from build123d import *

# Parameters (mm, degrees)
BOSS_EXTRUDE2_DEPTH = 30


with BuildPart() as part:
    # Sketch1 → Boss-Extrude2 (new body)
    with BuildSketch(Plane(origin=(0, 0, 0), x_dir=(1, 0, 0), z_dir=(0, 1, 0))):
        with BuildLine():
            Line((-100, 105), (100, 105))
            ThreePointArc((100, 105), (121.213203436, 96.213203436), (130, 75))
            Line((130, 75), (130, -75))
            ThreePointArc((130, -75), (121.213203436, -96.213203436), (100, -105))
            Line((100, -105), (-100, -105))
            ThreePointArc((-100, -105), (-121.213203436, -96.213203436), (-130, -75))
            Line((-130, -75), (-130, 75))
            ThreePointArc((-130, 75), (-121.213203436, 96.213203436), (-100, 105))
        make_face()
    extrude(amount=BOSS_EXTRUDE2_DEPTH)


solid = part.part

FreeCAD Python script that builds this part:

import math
import FreeCAD as App
import Part
import Sketcher
from FreeCAD import Vector
Q = App.Units.Quantity

doc = App.newDocument("Part")
params = doc.addObject("Spreadsheet::Sheet", "Params")
for row, (alias, value) in enumerate([
    ("sketch1_radius", "30 mm"),
    ("sketch1_width", "200 mm"),
    ("sketch1_height", "150 mm"),
    ("pad1_length", "30 mm"),
], start=1):
    params.set(f"A{row}", alias)
    params.set(f"B{row}", "=" + value)
    params.setAlias(f"B{row}", alias)

body = doc.addObject("PartDesign::Body", "Body")

# Sketch on XZ plane
sketch1 = body.newObject("Sketcher::SketchObject", "Sketch")
sketch1.AttachmentSupport = (doc.getObject("XZ_Plane"), [""])
sketch1.MapMode = "FlatFace"
sketch1.addGeometry([
    Part.LineSegment(Vector(100, -105, 0), Vector(-100, -105, 0)),  # 0
    Part.ArcOfCircle(Part.Circle(Vector(-100, -75, 0), Vector(0, 0, 1), 30), math.radians(180), math.radians(270)),  # 1
    Part.LineSegment(Vector(-130, -75, 0), Vector(-130, 75, 0)),  # 2
    Part.ArcOfCircle(Part.Circle(Vector(-100, 75, 0), Vector(0, 0, 1), 30), math.radians(90), math.radians(180)),  # 3
    Part.LineSegment(Vector(-100, 105, 0), Vector(100, 105, 0)),  # 4
    Part.ArcOfCircle(Part.Circle(Vector(100, 75, 0), Vector(0, 0, 1), 30), math.radians(0), math.radians(90)),  # 5
    Part.LineSegment(Vector(130, 75, 0), Vector(130, -75, 0)),  # 6
    Part.ArcOfCircle(Part.Circle(Vector(100, -75, 0), Vector(0, 0, 1), 30), math.radians(-90), math.radians(0)),  # 7
], False)
sketch1.addConstraint([
    Sketcher.Constraint("Tangent", 0, 2, 1, 2),
    Sketcher.Constraint("Tangent", 1, 1, 2, 1),
    Sketcher.Constraint("Tangent", 2, 2, 3, 2),
    Sketcher.Constraint("Tangent", 3, 1, 4, 1),
    Sketcher.Constraint("Tangent", 4, 2, 5, 2),
    Sketcher.Constraint("Tangent", 5, 1, 6, 1),
    Sketcher.Constraint("Tangent", 6, 2, 7, 2),
    Sketcher.Constraint("Tangent", 7, 1, 0, 1),
    Sketcher.Constraint("Horizontal", 0),
    Sketcher.Constraint("Vertical", 2),
    Sketcher.Constraint("Horizontal", 4),
    Sketcher.Constraint("Vertical", 6),
    Sketcher.Constraint("Equal", 1, 3),
    Sketcher.Constraint("Equal", 3, 5),
    Sketcher.Constraint("Equal", 5, 7),
    Sketcher.Constraint("Symmetric", 1, 3, 5, 3, -1, 1),
    Sketcher.Constraint("Radius", 1, Q("30 mm")),
    Sketcher.Constraint("DistanceX", 0, 2, 0, 1, Q("200 mm")),
    Sketcher.Constraint("DistanceY", 2, 1, 2, 2, Q("150 mm")),
])
sketch1.setExpression("Constraints[16]", "Params.sketch1_radius")
sketch1.setExpression("Constraints[17]", "Params.sketch1_width")
sketch1.setExpression("Constraints[18]", "Params.sketch1_height")
pad1 = body.newObject("PartDesign::Pad", "Pad")
pad1.Profile = sketch1
pad1.setExpression("Length", "Params.pad1_length")
pad1.Reversed = True

doc.recompute()
